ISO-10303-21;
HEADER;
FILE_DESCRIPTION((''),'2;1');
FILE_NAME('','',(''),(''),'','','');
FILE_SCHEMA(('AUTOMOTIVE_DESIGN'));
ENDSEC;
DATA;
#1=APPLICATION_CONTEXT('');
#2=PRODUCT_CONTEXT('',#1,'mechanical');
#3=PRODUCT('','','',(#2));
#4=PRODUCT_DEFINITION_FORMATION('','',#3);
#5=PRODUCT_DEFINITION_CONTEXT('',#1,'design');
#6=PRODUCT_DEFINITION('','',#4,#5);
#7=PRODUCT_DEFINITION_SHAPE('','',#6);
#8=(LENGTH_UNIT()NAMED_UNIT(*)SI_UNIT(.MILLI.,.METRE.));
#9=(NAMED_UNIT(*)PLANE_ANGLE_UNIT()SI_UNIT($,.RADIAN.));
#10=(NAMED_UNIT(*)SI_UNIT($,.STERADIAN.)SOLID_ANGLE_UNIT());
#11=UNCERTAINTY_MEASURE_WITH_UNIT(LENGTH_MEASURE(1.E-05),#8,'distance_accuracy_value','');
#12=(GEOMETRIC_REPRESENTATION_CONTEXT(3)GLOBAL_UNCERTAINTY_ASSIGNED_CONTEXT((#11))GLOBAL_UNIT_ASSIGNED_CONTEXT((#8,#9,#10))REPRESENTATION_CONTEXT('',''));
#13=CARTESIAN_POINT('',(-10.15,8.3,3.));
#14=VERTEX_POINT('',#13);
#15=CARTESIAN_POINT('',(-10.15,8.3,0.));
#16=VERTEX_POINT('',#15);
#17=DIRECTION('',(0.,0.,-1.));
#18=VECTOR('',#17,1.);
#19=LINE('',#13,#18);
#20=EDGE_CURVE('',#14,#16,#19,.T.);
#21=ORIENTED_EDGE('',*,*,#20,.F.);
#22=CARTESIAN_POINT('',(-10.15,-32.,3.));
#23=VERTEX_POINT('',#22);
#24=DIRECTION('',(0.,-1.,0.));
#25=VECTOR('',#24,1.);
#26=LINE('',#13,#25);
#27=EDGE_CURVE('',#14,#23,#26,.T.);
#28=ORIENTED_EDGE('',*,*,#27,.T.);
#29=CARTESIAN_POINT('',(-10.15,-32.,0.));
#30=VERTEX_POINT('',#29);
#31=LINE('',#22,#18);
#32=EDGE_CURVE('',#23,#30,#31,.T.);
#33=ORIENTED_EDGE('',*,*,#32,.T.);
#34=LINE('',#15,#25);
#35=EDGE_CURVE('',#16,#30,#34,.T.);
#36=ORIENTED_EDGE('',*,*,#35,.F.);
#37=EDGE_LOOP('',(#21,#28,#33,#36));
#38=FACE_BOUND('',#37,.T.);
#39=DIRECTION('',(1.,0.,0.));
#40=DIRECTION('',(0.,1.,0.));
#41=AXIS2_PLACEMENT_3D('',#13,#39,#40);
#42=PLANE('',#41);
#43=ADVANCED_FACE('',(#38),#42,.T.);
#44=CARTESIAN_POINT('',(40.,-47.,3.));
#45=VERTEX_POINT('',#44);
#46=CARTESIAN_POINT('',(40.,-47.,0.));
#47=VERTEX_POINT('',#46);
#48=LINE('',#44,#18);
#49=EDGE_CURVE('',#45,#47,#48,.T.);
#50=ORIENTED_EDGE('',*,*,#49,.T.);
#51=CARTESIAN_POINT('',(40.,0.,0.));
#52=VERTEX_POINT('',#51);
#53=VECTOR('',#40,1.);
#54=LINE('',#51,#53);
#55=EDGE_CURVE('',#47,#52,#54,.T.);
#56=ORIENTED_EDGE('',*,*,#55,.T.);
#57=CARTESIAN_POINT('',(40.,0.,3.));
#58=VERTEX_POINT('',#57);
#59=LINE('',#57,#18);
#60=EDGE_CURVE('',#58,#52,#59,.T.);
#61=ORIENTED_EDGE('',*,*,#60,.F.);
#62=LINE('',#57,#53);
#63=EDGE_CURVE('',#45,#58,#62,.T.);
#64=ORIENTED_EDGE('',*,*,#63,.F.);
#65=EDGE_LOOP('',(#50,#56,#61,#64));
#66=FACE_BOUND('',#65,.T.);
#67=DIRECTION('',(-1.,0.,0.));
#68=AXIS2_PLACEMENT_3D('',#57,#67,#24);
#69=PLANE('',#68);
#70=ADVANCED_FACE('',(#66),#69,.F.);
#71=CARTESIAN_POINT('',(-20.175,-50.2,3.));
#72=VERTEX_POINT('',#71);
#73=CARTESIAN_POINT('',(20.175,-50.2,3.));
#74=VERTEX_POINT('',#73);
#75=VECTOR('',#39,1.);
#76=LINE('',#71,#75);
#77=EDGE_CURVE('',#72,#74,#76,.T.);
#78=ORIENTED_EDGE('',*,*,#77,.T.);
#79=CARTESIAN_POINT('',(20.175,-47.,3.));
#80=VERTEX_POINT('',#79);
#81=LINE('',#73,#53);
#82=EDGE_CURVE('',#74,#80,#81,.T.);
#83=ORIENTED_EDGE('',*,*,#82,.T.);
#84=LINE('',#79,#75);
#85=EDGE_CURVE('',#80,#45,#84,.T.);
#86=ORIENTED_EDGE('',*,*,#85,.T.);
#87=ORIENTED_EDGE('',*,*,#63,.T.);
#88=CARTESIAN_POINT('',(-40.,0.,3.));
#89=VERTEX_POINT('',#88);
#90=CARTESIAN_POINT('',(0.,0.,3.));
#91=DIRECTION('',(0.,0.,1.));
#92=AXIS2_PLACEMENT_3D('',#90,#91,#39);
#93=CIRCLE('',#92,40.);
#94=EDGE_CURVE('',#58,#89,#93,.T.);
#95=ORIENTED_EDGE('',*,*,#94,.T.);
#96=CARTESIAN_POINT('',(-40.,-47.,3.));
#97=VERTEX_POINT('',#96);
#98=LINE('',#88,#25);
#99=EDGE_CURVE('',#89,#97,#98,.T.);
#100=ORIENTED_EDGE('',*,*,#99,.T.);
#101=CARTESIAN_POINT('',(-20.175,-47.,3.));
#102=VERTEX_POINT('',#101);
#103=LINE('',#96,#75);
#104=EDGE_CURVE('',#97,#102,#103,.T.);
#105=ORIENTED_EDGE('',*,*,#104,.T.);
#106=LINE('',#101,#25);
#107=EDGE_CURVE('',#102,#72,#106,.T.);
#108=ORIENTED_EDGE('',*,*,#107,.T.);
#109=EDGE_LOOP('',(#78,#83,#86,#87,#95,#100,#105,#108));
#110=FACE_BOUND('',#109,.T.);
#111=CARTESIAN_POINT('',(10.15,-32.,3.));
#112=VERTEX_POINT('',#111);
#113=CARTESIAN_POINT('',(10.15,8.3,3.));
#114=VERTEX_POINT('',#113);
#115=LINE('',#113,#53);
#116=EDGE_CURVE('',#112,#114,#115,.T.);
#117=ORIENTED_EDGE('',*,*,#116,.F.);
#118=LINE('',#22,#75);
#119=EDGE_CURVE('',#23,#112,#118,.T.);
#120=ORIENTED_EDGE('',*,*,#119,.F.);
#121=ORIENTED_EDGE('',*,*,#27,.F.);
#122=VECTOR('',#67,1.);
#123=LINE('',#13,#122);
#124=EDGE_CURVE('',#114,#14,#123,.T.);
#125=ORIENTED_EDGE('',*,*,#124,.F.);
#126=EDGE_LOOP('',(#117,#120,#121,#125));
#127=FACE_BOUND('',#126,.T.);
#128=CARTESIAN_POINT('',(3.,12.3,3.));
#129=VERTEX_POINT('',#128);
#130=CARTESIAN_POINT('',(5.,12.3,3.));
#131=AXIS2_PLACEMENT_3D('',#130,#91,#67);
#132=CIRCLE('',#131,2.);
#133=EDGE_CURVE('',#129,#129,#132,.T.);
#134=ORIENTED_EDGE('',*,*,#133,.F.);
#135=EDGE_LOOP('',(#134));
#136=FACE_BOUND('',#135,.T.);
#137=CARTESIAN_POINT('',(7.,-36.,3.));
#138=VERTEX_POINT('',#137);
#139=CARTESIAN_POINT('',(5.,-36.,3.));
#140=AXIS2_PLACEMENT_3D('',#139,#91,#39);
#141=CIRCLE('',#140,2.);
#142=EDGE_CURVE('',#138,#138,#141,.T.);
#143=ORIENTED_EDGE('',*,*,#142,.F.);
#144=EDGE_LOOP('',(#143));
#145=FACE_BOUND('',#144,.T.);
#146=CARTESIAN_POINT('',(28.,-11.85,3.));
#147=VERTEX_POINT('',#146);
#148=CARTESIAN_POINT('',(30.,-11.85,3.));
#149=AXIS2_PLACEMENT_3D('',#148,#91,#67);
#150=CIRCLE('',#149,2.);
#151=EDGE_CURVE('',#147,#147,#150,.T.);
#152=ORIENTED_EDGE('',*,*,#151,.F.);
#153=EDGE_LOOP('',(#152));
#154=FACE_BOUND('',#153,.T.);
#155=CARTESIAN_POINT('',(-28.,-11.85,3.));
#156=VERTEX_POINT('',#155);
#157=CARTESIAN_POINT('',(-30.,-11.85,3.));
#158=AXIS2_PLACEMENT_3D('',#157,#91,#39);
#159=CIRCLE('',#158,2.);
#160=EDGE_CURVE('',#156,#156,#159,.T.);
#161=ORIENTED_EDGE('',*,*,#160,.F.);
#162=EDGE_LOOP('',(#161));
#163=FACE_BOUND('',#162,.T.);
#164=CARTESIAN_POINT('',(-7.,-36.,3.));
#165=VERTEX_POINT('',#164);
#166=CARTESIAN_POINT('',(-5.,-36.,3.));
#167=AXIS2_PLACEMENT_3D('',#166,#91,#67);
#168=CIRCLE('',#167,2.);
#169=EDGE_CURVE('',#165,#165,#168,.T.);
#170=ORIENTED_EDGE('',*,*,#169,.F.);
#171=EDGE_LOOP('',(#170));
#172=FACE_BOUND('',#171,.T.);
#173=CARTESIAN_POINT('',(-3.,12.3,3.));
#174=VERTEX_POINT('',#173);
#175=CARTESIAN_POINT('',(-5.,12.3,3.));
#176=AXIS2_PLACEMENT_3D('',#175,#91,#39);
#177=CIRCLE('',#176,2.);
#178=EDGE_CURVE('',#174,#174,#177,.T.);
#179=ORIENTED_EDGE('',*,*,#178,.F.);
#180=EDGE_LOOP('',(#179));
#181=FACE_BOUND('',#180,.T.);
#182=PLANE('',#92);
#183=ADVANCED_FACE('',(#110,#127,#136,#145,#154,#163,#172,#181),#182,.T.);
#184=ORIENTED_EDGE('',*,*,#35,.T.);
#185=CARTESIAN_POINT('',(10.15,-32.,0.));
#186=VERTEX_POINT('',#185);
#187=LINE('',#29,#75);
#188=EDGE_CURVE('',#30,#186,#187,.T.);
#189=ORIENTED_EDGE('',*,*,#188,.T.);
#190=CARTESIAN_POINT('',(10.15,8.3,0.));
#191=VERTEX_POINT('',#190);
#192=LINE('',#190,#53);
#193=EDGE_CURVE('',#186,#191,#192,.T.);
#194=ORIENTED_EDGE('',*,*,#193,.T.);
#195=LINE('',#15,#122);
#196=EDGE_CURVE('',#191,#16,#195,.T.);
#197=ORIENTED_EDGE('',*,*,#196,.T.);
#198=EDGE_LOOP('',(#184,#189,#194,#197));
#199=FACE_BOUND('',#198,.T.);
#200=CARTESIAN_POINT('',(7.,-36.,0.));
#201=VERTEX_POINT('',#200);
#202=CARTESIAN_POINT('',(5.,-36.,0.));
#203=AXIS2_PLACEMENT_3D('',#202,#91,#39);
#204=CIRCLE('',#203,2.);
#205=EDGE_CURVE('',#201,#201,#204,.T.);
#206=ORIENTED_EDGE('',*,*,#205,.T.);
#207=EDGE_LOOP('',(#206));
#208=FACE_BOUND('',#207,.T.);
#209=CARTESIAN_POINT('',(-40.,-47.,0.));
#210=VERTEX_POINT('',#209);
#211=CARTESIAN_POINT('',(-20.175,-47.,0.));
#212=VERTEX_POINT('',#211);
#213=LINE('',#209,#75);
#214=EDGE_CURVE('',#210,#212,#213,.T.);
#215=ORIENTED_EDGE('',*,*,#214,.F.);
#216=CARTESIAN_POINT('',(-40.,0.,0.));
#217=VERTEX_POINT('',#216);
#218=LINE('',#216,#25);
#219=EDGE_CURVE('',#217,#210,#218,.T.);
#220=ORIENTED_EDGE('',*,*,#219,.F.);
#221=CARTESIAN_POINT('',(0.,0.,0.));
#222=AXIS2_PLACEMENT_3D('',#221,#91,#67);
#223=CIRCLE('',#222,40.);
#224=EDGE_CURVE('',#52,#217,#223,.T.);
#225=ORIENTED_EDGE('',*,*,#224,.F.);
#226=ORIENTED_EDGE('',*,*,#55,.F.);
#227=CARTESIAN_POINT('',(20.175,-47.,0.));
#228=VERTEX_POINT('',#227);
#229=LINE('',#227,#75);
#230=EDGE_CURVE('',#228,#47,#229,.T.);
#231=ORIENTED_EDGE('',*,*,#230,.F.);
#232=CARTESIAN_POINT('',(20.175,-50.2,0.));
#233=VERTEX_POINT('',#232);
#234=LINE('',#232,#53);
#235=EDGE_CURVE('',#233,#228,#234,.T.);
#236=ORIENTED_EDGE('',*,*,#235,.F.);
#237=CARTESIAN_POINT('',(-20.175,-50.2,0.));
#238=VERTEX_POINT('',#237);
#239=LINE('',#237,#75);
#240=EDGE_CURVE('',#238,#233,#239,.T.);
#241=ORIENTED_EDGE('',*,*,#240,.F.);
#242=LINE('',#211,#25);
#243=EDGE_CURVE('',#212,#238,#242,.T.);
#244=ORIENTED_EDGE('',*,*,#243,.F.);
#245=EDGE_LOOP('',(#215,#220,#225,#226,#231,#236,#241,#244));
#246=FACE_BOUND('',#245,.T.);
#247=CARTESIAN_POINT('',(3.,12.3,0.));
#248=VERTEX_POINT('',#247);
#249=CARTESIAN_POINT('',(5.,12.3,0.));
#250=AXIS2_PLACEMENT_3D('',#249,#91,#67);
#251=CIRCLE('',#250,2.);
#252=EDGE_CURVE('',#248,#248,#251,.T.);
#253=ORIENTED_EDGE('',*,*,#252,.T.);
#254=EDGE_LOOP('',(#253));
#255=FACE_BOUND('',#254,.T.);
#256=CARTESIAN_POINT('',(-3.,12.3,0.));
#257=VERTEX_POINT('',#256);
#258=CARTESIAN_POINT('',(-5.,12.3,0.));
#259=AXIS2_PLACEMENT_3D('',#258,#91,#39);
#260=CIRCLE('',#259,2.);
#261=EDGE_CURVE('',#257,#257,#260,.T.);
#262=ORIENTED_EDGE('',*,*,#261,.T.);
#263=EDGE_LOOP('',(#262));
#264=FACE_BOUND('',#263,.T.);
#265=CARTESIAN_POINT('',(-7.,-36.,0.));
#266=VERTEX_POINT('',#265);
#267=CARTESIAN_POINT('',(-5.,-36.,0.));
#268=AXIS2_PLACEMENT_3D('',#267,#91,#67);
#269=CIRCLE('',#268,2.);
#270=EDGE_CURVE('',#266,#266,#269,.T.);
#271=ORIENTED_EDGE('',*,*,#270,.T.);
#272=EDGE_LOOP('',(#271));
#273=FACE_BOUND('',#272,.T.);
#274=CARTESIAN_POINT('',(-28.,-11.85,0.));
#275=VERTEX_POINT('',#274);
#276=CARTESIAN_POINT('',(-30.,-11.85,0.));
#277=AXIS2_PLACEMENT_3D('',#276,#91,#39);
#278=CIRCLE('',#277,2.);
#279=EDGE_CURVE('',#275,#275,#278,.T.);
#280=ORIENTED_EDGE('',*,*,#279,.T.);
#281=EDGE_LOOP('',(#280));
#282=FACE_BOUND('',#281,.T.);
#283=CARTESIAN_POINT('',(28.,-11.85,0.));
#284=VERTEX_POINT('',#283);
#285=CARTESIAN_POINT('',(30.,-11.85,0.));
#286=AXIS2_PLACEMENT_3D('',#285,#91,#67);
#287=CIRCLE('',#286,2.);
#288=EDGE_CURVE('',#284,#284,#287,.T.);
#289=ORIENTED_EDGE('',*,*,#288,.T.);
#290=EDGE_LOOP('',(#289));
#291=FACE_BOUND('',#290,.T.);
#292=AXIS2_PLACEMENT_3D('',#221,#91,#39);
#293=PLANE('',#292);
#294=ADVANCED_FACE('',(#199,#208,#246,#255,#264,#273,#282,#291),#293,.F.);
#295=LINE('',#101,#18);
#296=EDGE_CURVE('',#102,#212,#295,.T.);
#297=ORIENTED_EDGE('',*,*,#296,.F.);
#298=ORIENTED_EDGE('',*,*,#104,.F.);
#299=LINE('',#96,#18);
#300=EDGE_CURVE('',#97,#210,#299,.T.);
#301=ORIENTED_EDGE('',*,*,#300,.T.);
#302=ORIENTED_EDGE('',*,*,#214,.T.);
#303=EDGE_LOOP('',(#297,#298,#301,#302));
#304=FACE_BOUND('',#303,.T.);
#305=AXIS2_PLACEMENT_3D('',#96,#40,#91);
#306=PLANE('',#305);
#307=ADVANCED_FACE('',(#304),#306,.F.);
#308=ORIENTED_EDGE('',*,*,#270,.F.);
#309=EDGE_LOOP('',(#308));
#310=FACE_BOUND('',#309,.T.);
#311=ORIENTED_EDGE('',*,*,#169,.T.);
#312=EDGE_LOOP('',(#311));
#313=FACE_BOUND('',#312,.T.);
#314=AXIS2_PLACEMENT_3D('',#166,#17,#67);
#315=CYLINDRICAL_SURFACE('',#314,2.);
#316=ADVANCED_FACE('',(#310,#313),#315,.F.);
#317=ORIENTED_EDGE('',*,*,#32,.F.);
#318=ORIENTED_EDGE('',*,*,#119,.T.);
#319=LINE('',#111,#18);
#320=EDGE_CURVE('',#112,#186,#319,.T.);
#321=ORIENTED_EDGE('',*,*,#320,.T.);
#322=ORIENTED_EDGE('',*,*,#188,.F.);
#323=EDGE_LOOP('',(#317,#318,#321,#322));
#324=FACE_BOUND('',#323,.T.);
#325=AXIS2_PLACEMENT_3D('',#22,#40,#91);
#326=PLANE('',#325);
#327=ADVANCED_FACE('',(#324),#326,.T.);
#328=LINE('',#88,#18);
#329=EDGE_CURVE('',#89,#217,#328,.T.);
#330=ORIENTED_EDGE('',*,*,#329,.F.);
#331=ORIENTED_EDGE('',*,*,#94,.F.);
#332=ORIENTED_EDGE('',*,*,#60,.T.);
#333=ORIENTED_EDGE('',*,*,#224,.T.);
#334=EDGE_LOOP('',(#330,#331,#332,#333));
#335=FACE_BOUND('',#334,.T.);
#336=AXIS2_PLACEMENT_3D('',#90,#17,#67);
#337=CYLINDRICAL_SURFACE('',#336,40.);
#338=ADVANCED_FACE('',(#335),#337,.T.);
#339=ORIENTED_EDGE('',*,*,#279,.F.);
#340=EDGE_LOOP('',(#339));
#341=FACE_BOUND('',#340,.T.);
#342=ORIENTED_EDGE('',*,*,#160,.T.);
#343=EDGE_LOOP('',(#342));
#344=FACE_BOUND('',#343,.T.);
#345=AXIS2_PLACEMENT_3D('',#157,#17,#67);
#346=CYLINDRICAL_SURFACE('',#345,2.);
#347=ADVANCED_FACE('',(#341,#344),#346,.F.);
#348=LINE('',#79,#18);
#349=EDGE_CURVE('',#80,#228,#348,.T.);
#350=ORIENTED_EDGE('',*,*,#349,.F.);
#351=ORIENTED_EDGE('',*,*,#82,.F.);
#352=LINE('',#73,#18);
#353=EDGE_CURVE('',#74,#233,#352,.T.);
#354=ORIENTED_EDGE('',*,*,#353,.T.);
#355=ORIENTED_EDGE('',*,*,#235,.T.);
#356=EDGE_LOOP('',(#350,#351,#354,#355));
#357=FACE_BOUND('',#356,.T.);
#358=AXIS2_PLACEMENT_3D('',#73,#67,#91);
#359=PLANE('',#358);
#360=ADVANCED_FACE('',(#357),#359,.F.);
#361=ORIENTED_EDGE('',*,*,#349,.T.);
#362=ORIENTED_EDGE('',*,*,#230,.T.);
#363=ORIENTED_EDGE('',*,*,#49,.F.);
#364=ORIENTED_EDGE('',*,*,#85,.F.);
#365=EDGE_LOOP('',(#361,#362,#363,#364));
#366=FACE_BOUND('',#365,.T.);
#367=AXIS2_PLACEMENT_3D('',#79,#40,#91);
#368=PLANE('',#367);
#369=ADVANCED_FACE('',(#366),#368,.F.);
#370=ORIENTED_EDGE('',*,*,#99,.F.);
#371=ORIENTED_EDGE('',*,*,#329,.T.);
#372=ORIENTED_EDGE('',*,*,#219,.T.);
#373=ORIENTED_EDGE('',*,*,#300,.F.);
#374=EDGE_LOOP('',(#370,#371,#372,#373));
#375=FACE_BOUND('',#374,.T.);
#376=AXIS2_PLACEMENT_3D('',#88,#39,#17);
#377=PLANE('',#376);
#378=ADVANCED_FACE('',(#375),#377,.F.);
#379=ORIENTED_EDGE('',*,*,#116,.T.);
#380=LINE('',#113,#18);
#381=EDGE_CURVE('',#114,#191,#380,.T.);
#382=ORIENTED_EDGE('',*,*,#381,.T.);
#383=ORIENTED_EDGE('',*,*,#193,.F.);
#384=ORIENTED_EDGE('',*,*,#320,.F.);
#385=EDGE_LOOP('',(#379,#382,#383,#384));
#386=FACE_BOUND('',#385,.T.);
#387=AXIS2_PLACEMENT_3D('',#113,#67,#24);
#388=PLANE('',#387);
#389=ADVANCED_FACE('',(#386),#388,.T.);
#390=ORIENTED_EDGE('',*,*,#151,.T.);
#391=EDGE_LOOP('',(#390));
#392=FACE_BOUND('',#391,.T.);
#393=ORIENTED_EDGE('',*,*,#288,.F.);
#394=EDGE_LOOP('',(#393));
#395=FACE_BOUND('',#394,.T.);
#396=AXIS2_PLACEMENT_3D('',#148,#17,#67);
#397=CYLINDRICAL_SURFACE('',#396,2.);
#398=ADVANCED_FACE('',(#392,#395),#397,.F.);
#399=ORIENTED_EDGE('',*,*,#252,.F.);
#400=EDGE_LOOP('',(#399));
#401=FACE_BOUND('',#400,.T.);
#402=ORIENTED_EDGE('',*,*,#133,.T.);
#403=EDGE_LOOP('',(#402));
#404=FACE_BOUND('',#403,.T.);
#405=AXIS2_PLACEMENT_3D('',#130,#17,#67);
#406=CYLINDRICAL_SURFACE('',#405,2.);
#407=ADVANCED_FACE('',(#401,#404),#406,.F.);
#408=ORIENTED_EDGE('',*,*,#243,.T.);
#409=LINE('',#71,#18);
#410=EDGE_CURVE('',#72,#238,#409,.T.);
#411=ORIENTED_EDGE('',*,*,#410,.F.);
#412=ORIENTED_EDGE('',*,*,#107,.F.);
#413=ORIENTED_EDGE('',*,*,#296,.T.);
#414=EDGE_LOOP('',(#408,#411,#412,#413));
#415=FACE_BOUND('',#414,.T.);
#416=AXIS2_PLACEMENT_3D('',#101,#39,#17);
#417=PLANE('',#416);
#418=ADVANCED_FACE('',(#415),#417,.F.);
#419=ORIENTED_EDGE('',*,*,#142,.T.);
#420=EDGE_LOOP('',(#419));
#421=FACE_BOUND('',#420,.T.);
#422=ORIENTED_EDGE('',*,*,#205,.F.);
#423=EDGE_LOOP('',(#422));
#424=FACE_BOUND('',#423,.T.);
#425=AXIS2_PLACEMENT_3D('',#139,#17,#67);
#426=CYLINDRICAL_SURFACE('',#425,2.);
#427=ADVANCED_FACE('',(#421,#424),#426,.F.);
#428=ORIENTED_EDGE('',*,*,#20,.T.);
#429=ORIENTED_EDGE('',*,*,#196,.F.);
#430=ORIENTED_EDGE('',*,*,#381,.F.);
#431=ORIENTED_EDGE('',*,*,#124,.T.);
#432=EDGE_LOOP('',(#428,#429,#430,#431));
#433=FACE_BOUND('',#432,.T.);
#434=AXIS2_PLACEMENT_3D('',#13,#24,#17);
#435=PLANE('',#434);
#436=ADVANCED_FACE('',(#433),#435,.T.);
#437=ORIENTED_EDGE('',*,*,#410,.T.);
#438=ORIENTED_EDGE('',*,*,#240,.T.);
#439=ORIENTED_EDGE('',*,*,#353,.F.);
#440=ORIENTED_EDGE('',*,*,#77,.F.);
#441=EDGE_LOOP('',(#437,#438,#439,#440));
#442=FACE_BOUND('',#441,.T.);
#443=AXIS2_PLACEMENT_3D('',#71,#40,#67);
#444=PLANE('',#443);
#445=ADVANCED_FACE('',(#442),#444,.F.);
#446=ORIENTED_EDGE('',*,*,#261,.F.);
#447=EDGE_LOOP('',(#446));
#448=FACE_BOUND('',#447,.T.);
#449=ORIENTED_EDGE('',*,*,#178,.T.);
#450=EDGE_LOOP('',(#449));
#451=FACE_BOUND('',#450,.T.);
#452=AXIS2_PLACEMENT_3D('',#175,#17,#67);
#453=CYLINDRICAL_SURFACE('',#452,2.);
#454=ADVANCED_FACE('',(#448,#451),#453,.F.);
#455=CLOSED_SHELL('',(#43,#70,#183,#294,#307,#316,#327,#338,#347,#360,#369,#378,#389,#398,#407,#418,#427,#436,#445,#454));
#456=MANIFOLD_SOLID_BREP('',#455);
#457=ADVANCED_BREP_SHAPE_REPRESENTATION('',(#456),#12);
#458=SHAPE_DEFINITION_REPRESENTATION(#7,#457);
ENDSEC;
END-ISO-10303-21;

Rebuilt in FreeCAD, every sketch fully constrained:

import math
import FreeCAD as App
import Part
import Sketcher

V = App.Vector
Q = App.Units.Quantity


def add_polygon(sketch, points):
    """Adds a closed chain of lines whose ends are joined by coincident constraints."""
    first, n = sketch.GeometryCount, len(points)
    for a, b in zip(points, points[1:] + points[:1]):
        sketch.addGeometry(Part.LineSegment(App.Vector(*a, 0), App.Vector(*b, 0)), False)
    for i in range(n):
        sketch.addConstraint(Sketcher.Constraint("Coincident", first + i, 2, first + (i + 1) % n, 1))

doc = App.newDocument("Part")
params = doc.addObject("Spreadsheet::Sheet", "Params")
for row, (alias, value) in enumerate([
    ("sketch1_diameter", "4 mm"),
    ("sketch1_radius", "40 mm"),
    ("sketch1_height", "47 mm"),
    ("sketch1_width", "20.3 mm"),
    ("sketch1_height2", "3.2 mm"),
    ("pad1_length", "3 mm"),
], start=1):
    params.set(f"A{row}", alias)
    params.set(f"B{row}", "=" + value)
    params.setAlias(f"B{row}", alias)

body = doc.addObject("PartDesign::Body", "Body")

sketch1 = body.newObject("Sketcher::SketchObject", "Sketch")
sketch1.AttachmentSupport = (doc.getObject("XY_Plane"), [""])
sketch1.MapMode = "FlatFace"
sketch1.addGeometry(Part.LineSegment(V(40, -47, 0), V(40, 0, 0)), False)
sketch1.addGeometry(Part.ArcOfCircle(Part.Circle(V(0, 0, 0), V(0, 0, 1), 40), math.radians(0), math.radians(90)), False)
sketch1.addGeometry(Part.ArcOfCircle(Part.Circle(V(0, 0, 0), V(0, 0, 1), 40), math.radians(90), math.radians(180)), False)
sketch1.addGeometry(Part.LineSegment(V(-40, 0, 0), V(-40, -47, 0)), False)
sketch1.addGeometry(Part.LineSegment(V(-40, -47, 0), V(-20.2, -47, 0)), False)
sketch1.addGeometry(Part.LineSegment(V(-20.2, -47, 0), V(-20.2, -50.2, 0)), False)
sketch1.addGeometry(Part.LineSegment(V(-20.2, -50.2, 0), V(20.2, -50.2, 0)), False)
sketch1.addGeometry(Part.LineSegment(V(20.2, -50.2, 0), V(20.2, -47, 0)), False)
sketch1.addGeometry(Part.LineSegment(V(20.2, -47, 0), V(40, -47, 0)), False)
sketch1.addGeometry(Part.Circle(V(5, -36, 0), V(0, 0, 1), 2), False)
sketch1.addGeometry(Part.Circle(V(-5, -36, 0), V(0, 0, 1), 2), False)
sketch1.addGeometry(Part.Circle(V(30, -11.8, 0), V(0, 0, 1), 2), False)
sketch1.addGeometry(Part.Circle(V(5, 12.3, 0), V(0, 0, 1), 2), False)
add_polygon(sketch1, [(-10.2, -32), (-10.2, 8.3), (10.2, 8.3), (10.2, -32)])
sketch1.addGeometry(Part.Circle(V(-30, -11.8, 0), V(0, 0, 1), 2), False)
sketch1.addGeometry(Part.Circle(V(-5, 12.3, 0), V(0, 0, 1), 2), False)
sketch1.addConstraint([
    Sketcher.Constraint("Tangent", 0, 2, 1, 1),
    Sketcher.Constraint("Tangent", 1, 2, 2, 1),
    Sketcher.Constraint("Tangent", 2, 2, 3, 1),
    Sketcher.Constraint("Coincident", 3, 2, 4, 1),
    Sketcher.Constraint("Coincident", 4, 2, 5, 1),
    Sketcher.Constraint("Coincident", 5, 2, 6, 1),
    Sketcher.Constraint("Coincident", 6, 2, 7, 1),
    Sketcher.Constraint("Coincident", 7, 2, 8, 1),
    Sketcher.Constraint("Coincident", 8, 2, 0, 1),
    Sketcher.Constraint("Vertical", 0),
    Sketcher.Constraint("Vertical", 3),
    Sketcher.Constraint("Horizontal", 4),
    Sketcher.Constraint("Vertical", 5),
    Sketcher.Constraint("Horizontal", 6),
    Sketcher.Constraint("Vertical", 7),
    Sketcher.Constraint("Horizontal", 8),
    Sketcher.Constraint("Vertical", 13),
    Sketcher.Constraint("Horizontal", 14),
    Sketcher.Constraint("Vertical", 15),
    Sketcher.Constraint("Horizontal", 16),
    Sketcher.Constraint("Coincident", 1, 3, -1, 1),
    Sketcher.Constraint("Equal", 1, 2),
    Sketcher.Constraint("Equal", 9, 10),
    Sketcher.Constraint("Equal", 10, 11),
    Sketcher.Constraint("Equal", 11, 12),
    Sketcher.Constraint("Equal", 12, 17),
    Sketcher.Constraint("Equal", 17, 18),
    Sketcher.Constraint("Symmetric", 9, 3, 10, 3, -2),
    Sketcher.Constraint("Symmetric", 11, 3, 17, 3, -2),
    Sketcher.Constraint("Symmetric", 12, 3, 18, 3, -2),
    Sketcher.Constraint("Symmetric", 4, 2, 7, 2, -2),
    Sketcher.Constraint("PointOnObject", 1, 2, -2),
    Sketcher.Constraint("Vertical", 9, 3, 12, 3),
    Sketcher.Constraint("Diameter", 9, Q("4 mm")),
    Sketcher.Constraint("Radius", 1, Q("40 mm")),
    Sketcher.Constraint("DistanceY", 0, 1, 0, 2, Q("47 mm")),
    Sketcher.Constraint("DistanceX", 14, 1, 14, 2, Q("20.3 mm")),
    Sketcher.Constraint("DistanceY", 5, 2, 5, 1, Q("3.2 mm")),
    Sketcher.Constraint("DistanceY", 13, 1, 13, 2, Q("40.3 mm")),
    Sketcher.Constraint("DistanceX", -1, 1, 9, 3, Q("5 mm")),
    Sketcher.Constraint("DistanceY", 9, 3, -1, 1, Q("36 mm")),
    Sketcher.Constraint("DistanceX", -1, 1, 11, 3, Q("30 mm")),
    Sketcher.Constraint("DistanceY", 15, 2, -1, 1, Q("32 mm")),
    Sketcher.Constraint("DistanceY", 13, 2, 18, 3, Q("4 mm")),
    Sketcher.Constraint("DistanceX", 6, 1, 6, 2, Q("40.35 mm")),
    Sketcher.Constraint("DistanceY", 11, 3, -1, 1, Q("11.85 mm")),
    Sketcher.Constraint("DistanceX", 13, 2, -1, 1, Q("10.15 mm")),
])
sketch1.setExpression("Constraints[37]", "Params.sketch1_diameter")
sketch1.setExpression("Constraints[38]", "Params.sketch1_radius")
sketch1.setExpression("Constraints[39]", "Params.sketch1_height")
sketch1.setExpression("Constraints[40]", "Params.sketch1_width")
sketch1.setExpression("Constraints[41]", "Params.sketch1_height2")
pad1 = body.newObject("PartDesign::Pad", "Pad")
pad1.Profile = sketch1
pad1.setExpression("Length", "Params.pad1_length")

doc.recompute()
